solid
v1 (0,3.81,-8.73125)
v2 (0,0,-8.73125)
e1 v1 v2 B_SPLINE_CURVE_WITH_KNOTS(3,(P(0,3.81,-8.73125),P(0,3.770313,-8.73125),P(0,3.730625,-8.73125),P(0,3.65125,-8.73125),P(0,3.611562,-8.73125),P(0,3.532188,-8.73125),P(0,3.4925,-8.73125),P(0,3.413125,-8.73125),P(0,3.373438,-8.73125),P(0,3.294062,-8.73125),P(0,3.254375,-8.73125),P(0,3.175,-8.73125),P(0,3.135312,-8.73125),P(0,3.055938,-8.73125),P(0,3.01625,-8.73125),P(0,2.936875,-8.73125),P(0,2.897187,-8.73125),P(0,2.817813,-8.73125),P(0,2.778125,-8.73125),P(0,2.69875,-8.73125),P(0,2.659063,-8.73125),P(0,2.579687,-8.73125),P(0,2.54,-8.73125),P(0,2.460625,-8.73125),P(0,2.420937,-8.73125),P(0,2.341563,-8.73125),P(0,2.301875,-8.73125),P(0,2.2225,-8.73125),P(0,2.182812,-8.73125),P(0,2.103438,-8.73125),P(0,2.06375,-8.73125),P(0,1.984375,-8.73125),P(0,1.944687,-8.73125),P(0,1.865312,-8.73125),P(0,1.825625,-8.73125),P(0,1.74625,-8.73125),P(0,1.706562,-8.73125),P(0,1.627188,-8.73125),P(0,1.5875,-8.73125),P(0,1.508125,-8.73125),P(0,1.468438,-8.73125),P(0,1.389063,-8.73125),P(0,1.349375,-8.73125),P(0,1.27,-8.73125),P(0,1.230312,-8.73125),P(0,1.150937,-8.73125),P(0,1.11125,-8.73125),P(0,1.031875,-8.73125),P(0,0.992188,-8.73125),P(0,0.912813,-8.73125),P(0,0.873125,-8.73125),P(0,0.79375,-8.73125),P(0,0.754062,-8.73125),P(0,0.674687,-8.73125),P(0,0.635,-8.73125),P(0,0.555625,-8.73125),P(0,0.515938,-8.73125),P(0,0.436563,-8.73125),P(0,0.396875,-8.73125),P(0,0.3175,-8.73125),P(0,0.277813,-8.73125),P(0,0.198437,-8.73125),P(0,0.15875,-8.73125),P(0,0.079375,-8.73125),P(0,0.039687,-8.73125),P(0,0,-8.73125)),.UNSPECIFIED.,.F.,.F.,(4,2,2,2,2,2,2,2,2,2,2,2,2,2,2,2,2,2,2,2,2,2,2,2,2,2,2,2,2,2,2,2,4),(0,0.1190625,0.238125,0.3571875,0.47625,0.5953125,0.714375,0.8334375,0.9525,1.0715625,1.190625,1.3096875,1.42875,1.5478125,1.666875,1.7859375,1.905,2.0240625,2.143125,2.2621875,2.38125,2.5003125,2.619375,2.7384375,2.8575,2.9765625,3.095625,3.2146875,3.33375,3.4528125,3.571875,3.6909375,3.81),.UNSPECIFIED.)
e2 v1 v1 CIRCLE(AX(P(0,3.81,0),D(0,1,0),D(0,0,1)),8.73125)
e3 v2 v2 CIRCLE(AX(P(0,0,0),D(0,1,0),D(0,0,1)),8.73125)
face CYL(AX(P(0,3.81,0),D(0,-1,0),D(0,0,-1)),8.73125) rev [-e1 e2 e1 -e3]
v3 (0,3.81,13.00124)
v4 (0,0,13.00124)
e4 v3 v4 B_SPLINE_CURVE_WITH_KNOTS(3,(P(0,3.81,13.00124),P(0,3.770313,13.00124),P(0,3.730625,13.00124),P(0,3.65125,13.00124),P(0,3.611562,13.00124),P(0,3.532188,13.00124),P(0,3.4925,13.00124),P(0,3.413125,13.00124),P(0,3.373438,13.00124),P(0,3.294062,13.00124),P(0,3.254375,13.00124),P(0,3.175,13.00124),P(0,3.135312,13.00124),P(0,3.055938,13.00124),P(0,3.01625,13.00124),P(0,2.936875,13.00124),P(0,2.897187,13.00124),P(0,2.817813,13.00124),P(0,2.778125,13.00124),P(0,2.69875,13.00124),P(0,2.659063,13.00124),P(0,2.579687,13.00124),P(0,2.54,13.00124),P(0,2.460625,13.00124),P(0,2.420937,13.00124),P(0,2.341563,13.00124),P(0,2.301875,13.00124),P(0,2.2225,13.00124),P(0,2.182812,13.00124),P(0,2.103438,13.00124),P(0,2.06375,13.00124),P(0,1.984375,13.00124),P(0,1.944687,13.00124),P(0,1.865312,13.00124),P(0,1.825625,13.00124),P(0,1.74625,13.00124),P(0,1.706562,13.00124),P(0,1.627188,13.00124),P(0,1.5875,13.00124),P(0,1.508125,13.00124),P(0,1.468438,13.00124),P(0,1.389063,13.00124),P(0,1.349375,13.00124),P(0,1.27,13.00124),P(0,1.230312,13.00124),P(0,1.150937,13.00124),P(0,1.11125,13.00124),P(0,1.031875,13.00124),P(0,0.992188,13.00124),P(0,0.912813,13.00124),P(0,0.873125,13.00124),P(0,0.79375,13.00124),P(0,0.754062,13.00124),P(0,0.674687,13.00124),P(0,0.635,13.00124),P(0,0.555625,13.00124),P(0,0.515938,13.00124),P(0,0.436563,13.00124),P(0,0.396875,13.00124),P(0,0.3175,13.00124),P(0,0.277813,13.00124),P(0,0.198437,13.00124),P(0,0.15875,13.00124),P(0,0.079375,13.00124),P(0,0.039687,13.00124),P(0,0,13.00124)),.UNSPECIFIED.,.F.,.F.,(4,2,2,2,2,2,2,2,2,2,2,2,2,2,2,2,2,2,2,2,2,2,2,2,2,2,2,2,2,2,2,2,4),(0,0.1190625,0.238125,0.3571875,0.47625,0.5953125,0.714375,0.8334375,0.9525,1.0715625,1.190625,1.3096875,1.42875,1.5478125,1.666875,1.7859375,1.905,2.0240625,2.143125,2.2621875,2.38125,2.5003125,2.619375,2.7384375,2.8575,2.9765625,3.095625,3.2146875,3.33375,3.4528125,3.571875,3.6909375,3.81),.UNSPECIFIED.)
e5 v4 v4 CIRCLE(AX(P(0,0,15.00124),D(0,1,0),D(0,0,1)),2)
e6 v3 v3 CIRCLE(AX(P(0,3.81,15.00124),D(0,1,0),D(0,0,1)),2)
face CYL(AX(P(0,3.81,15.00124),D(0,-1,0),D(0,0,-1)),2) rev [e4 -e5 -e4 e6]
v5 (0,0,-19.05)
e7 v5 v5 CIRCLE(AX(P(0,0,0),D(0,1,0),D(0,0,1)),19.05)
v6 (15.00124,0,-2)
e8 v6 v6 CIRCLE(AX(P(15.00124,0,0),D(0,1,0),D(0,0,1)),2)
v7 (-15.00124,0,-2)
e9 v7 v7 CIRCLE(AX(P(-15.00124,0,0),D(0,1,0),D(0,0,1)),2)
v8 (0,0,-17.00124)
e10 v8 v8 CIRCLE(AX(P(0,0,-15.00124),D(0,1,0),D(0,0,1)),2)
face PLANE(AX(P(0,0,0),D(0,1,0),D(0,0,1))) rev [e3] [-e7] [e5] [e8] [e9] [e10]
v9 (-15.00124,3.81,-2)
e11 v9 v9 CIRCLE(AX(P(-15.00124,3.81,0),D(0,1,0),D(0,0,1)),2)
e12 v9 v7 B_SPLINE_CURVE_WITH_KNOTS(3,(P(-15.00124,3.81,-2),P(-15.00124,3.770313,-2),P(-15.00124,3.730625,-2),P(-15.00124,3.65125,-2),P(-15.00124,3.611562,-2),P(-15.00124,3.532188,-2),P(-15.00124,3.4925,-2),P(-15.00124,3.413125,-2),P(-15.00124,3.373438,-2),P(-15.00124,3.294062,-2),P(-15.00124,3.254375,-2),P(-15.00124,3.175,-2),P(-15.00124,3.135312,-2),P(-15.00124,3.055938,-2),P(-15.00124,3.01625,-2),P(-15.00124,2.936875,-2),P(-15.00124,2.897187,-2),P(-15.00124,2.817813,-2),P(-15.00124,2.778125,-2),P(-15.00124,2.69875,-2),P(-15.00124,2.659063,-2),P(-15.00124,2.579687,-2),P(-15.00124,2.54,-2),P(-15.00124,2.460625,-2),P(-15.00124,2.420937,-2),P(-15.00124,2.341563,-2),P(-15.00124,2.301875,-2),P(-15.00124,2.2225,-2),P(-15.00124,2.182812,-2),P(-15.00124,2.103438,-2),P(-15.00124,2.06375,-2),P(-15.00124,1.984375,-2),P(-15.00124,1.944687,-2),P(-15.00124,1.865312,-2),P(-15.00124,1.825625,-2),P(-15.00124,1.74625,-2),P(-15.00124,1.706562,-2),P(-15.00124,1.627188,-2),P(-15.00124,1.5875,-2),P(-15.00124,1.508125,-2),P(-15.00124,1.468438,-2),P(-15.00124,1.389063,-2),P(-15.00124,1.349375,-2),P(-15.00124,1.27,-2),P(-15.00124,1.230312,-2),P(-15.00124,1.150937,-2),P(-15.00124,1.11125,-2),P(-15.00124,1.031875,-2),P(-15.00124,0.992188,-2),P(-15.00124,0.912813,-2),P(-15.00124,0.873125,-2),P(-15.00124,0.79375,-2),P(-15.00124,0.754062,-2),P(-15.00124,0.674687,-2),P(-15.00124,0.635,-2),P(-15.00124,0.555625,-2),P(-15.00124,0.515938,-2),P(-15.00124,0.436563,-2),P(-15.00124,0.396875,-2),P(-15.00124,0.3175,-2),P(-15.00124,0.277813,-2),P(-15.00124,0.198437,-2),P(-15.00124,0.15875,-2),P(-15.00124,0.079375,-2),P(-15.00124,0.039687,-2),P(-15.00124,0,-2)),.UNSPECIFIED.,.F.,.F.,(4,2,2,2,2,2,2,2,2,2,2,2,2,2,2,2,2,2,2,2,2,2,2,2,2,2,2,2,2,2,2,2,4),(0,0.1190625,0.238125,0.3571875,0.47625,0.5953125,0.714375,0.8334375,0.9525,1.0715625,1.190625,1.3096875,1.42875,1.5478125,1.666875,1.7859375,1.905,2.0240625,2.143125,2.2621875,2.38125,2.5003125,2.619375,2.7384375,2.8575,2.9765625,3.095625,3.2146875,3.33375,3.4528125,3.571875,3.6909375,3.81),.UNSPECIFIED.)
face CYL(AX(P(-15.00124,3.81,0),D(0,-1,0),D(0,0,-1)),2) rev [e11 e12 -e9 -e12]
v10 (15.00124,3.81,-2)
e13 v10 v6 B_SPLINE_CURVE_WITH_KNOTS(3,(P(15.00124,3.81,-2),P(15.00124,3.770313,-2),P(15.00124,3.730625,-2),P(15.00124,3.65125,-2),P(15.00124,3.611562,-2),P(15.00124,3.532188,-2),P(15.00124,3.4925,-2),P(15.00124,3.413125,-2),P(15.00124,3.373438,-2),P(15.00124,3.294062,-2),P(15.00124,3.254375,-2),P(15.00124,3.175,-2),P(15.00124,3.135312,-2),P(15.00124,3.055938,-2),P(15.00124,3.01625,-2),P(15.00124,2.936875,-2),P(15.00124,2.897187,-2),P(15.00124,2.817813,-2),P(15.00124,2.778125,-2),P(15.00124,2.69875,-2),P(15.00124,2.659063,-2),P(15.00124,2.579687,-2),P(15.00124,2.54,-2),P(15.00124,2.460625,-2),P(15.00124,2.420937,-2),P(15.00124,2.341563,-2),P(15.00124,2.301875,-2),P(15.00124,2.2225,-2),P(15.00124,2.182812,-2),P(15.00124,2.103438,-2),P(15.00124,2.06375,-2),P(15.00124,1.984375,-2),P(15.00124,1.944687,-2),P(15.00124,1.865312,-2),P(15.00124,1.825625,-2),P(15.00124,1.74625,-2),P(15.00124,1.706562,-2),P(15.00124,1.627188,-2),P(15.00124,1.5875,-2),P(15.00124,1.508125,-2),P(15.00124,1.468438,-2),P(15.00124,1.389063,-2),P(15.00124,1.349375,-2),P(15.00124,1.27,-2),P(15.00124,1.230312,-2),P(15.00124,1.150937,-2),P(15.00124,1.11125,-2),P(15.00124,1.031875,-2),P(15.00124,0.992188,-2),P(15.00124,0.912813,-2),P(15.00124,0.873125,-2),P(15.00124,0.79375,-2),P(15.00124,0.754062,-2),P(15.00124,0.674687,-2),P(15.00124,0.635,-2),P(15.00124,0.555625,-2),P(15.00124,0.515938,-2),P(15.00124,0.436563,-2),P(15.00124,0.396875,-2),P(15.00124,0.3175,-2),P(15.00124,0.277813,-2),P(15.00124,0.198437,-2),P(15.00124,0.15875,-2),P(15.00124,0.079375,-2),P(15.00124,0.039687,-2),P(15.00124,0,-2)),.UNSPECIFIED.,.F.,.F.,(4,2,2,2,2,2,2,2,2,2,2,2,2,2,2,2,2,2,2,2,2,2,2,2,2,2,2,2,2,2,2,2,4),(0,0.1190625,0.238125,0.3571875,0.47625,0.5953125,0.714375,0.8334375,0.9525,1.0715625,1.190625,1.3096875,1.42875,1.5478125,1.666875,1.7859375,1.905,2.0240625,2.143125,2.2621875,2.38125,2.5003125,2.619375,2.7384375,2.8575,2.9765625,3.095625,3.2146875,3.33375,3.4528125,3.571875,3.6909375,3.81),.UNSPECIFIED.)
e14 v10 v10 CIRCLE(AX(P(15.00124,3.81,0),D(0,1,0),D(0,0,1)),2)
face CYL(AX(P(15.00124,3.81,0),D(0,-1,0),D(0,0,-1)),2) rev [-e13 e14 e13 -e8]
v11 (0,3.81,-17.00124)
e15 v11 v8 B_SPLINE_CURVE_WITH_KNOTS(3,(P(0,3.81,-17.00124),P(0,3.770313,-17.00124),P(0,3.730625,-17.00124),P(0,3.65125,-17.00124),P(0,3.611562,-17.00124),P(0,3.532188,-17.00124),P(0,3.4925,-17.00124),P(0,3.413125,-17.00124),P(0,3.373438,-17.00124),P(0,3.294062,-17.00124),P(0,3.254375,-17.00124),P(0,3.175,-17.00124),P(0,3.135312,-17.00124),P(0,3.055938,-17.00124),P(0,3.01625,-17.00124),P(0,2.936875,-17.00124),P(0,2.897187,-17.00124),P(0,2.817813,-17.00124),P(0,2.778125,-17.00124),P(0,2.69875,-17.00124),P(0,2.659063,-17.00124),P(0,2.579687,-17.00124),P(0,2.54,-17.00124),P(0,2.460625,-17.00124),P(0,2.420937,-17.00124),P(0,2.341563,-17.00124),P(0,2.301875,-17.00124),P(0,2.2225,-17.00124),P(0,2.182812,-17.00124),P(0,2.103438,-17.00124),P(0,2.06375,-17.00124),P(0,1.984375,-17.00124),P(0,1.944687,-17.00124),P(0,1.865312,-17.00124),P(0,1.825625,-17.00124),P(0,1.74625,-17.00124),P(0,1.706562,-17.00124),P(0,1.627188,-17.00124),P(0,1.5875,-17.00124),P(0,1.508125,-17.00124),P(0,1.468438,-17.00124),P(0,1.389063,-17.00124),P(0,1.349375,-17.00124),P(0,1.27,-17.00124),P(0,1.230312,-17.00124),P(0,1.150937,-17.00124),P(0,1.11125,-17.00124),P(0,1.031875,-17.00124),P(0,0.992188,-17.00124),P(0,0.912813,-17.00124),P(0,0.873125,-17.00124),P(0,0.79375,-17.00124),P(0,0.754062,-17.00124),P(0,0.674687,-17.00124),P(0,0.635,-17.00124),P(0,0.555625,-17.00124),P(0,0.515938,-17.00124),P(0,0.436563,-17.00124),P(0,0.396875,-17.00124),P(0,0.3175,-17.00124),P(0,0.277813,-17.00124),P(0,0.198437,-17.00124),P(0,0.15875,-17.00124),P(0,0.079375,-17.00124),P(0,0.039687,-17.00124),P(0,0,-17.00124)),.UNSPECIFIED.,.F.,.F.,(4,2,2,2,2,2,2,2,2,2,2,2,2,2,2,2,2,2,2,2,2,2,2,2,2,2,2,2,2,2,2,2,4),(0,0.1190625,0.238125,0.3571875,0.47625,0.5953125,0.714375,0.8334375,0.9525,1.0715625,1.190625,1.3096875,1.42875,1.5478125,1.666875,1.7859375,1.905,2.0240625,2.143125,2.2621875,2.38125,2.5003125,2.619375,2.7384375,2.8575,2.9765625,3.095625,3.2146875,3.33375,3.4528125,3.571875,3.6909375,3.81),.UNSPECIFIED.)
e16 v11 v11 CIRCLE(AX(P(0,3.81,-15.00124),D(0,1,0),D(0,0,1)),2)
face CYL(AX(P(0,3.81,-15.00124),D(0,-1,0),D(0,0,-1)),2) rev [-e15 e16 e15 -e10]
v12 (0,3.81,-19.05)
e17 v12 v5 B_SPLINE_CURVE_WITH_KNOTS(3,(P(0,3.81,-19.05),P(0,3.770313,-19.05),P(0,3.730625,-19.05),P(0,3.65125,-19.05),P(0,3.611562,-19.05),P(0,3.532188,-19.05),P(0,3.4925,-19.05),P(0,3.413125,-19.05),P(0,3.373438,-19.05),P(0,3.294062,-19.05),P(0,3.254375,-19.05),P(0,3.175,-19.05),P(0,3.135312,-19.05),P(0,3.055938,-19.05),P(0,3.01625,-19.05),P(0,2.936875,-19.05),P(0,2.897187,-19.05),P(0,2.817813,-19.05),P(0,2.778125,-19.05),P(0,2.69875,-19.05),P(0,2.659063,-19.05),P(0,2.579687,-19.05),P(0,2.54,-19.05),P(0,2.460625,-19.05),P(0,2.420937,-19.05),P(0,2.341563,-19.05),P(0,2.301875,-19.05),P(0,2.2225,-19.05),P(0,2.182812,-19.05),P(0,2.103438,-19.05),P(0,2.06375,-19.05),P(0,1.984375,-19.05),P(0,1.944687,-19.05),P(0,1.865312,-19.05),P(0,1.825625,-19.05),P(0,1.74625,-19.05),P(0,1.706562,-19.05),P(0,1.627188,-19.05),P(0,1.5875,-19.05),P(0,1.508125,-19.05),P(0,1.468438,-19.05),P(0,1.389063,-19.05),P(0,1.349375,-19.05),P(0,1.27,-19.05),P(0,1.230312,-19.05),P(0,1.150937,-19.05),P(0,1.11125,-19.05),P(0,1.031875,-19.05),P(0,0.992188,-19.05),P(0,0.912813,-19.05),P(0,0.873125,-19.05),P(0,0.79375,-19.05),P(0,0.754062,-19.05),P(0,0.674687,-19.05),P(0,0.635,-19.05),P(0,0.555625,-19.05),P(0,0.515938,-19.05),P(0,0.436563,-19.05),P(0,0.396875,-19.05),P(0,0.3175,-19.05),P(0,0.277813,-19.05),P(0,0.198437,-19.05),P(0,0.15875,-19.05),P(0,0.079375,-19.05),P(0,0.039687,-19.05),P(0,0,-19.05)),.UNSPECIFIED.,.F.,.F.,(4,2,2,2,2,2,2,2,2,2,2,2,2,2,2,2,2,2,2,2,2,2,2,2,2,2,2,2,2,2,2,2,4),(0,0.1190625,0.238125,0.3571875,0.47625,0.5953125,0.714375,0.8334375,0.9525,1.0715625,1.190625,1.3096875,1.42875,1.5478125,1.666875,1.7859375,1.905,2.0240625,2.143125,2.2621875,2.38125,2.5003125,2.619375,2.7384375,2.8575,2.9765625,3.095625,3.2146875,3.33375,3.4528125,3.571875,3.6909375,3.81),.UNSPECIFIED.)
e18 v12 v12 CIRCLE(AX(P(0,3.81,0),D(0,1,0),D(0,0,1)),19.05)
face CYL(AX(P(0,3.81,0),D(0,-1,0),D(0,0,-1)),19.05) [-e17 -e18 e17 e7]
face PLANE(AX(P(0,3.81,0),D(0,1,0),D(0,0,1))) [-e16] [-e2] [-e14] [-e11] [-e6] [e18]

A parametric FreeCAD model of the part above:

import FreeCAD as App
import Part
import Sketcher
Q = App.Units.Quantity

doc = App.newDocument("Part")
params = doc.addObject("Spreadsheet::Sheet", "Params")
for row, (alias, value) in enumerate([
    ("sketch1_diameter", "1.5 in"),
    ("sketch1_diameter2", "0.6875 in"),
    ("pad1_length", "0.15 in"),
], start=1):
    params.set(f"A{row}", alias)
    params.set(f"B{row}", "=" + value)
    params.setAlias(f"B{row}", alias)

body = doc.addObject("PartDesign::Body", "Body")

sketch1 = body.newObject("Sketcher::SketchObject", "Sketch")
sketch1.AttachmentSupport = (doc.getObject("XZ_Plane"), [""])
sketch1.MapMode = "FlatFace"
sketch1.addGeometry([
    Part.Circle(App.Vector(0, 0, 0), App.Vector(0, 0, 1), 19.1),
    Part.Circle(App.Vector(0, 15, 0), App.Vector(0, 0, 1), 2),
    Part.Circle(App.Vector(0, 0, 0), App.Vector(0, 0, 1), 8.7),
    Part.Circle(App.Vector(15, 0, 0), App.Vector(0, 0, 1), 2),
    Part.Circle(App.Vector(-15, 0, 0), App.Vector(0, 0, 1), 2),
    Part.Circle(App.Vector(0, -15, 0), App.Vector(0, 0, 1), 2),
], False)
sketch1.addConstraint([
    Sketcher.Constraint("Coincident", 0, 3, -1, 1),
    Sketcher.Constraint("Coincident", 2, 3, -1, 1),
    Sketcher.Constraint("Equal", 1, 3),
    Sketcher.Constraint("Equal", 3, 4),
    Sketcher.Constraint("Equal", 4, 5),
    Sketcher.Constraint("Symmetric", 3, 3, 4, 3, -1, 1),
    Sketcher.Constraint("Symmetric", 1, 3, 5, 3, -1, 1),
    Sketcher.Constraint("PointOnObject", 1, 3, -2),
    Sketcher.Constraint("PointOnObject", 3, 3, -1),
    Sketcher.Constraint("Diameter", 0, Q("1.5 in")),
    Sketcher.Constraint("Diameter", 2, Q("0.6875 in")),
    Sketcher.Constraint("Diameter", 1, 4.0),
    Sketcher.Constraint("DistanceY", -1, 1, 1, 3, Q("0.5906 in")),
    Sketcher.Constraint("DistanceX", -1, 1, 3, 3, Q("0.5906 in")),
])
sketch1.setExpression("Constraints[9]", "Params.sketch1_diameter")
sketch1.setExpression("Constraints[10]", "Params.sketch1_diameter2")
pad1 = body.newObject("PartDesign::Pad", "Pad")
pad1.Profile = sketch1
pad1.setExpression("Length", "Params.pad1_length")
pad1.Reversed = True

doc.recompute()
